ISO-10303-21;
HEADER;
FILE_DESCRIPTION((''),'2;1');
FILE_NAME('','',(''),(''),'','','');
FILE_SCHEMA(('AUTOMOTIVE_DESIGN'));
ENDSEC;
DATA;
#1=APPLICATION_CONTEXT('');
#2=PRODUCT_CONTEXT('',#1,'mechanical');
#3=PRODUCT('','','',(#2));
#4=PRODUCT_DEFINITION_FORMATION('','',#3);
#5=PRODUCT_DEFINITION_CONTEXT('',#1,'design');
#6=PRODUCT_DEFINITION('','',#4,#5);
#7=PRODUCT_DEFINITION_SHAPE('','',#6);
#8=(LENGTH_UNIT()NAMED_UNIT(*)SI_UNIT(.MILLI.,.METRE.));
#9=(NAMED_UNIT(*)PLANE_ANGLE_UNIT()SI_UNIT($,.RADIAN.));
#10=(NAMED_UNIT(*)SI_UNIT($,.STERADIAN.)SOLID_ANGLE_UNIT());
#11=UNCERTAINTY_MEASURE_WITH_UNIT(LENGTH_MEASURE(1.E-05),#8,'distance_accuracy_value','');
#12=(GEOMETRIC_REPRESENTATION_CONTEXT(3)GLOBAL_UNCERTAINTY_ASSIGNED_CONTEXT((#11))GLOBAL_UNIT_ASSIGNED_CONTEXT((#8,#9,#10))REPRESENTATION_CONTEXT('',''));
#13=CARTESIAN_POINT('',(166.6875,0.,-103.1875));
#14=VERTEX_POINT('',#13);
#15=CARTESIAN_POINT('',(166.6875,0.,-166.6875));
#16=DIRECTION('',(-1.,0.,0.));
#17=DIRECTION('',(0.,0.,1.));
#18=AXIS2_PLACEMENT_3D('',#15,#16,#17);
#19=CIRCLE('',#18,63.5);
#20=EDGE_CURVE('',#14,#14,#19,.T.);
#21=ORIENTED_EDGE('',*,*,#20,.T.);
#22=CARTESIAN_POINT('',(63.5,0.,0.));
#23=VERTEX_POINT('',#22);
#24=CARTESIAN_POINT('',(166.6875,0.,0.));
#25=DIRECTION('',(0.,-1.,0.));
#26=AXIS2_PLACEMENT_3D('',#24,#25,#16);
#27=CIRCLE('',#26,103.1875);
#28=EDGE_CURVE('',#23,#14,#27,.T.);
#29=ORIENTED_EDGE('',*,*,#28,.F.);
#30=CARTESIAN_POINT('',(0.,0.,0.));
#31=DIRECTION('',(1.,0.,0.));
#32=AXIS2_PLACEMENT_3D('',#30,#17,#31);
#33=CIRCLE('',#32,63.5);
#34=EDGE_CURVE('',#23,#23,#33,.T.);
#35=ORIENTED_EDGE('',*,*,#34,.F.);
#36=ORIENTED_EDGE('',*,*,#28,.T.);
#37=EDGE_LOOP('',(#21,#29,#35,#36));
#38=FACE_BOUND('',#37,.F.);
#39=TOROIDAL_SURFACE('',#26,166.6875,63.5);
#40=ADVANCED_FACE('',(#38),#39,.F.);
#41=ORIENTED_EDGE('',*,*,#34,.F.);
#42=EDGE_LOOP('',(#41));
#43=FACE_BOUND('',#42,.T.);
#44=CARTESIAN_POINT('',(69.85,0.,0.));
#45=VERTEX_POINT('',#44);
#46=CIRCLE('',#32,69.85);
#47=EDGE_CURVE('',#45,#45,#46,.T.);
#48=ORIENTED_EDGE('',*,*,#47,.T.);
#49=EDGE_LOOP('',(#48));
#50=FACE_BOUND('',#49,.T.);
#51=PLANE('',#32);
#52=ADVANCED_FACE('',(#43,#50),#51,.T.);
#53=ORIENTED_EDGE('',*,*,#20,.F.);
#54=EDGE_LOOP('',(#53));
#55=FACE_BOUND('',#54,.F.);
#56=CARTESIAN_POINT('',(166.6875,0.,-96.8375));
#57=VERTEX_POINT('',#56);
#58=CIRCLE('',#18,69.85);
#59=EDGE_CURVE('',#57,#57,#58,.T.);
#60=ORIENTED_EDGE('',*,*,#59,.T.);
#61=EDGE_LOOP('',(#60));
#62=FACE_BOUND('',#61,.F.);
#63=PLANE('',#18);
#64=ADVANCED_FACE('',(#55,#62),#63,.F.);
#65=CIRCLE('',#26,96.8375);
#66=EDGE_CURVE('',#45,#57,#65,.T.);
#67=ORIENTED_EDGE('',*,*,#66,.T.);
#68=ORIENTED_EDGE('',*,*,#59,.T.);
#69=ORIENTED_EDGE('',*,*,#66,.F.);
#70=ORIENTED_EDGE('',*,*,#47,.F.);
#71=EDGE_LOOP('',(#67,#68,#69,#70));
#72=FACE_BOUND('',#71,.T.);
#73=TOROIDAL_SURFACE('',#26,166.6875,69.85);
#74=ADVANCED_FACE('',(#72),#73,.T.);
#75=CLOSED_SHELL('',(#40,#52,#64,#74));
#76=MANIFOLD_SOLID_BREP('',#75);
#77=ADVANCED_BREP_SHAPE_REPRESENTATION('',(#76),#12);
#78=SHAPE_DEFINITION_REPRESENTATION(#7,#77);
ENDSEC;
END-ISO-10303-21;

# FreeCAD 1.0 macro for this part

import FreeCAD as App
import Part
import Sketcher
from FreeCAD import Vector
Q = App.Units.Quantity

doc = App.newDocument("Part")
params = doc.addObject("Spreadsheet::Sheet", "Params")
for row, (alias, value) in enumerate([
    ("sketch1_diameter", "5 in"),
    ("sketch1_diameter2", "5.5 in"),
    ("revolution_angle", "90 deg"),
], start=1):
    params.set(f"A{row}", alias)
    params.set(f"B{row}", "=" + value)
    params.setAlias(f"B{row}", alias)

body = doc.addObject("PartDesign::Body", "Body")

sketch1 = doc.addObject("Sketcher::SketchObject", "Sketch")
body.addObject(sketch1)
sketch1.AttachmentSupport = (doc.XY_Plane, [""])
sketch1.MapMode = "FlatFace"
sketch1.addGeometry(Part.Circle(Vector(0, 0, 0), Vector(0, 0, 1), 69.85), False)
sketch1.addGeometry(Part.Circle(Vector(0, 0, 0), Vector(0, 0, 1), 63.5), False)
sketch1.addGeometry(Part.LineSegment(Vector(166.6875, 0, 0), Vector(166.6875, -10, 0)), True)
sketch1.addConstraint(Sketcher.Constraint("Vertical", 2))
sketch1.addConstraint(Sketcher.Constraint("Coincident", 0, 3, -1, 1))
sketch1.addConstraint(Sketcher.Constraint("Coincident", 1, 3, -1, 1))
sketch1.addConstraint(Sketcher.Constraint("PointOnObject", 2, 1, -1))
sketch1.addConstraint(Sketcher.Constraint("Diameter", 1, Q("5 in")))
sketch1.addConstraint(Sketcher.Constraint("Diameter", 0, Q("5.5 in")))
sketch1.addConstraint(Sketcher.Constraint("DistanceX", -1, 1, 2, 1, Q("6.5625 in")))
sketch1.addConstraint(Sketcher.Constraint("DistanceY", 2, 2, 2, 1, Q("10 mm")))
sketch1.setExpression("Constraints[4]", "Params.sketch1_diameter")
sketch1.setExpression("Constraints[5]", "Params.sketch1_diameter2")
revolution = doc.addObject("PartDesign::Revolution", "Revolution")
body.addObject(revolution)
revolution.Profile = sketch1
revolution.ReferenceAxis = (sketch1, ["Axis0"])
revolution.setExpression("Angle", "Params.revolution_angle")

doc.recompute()
